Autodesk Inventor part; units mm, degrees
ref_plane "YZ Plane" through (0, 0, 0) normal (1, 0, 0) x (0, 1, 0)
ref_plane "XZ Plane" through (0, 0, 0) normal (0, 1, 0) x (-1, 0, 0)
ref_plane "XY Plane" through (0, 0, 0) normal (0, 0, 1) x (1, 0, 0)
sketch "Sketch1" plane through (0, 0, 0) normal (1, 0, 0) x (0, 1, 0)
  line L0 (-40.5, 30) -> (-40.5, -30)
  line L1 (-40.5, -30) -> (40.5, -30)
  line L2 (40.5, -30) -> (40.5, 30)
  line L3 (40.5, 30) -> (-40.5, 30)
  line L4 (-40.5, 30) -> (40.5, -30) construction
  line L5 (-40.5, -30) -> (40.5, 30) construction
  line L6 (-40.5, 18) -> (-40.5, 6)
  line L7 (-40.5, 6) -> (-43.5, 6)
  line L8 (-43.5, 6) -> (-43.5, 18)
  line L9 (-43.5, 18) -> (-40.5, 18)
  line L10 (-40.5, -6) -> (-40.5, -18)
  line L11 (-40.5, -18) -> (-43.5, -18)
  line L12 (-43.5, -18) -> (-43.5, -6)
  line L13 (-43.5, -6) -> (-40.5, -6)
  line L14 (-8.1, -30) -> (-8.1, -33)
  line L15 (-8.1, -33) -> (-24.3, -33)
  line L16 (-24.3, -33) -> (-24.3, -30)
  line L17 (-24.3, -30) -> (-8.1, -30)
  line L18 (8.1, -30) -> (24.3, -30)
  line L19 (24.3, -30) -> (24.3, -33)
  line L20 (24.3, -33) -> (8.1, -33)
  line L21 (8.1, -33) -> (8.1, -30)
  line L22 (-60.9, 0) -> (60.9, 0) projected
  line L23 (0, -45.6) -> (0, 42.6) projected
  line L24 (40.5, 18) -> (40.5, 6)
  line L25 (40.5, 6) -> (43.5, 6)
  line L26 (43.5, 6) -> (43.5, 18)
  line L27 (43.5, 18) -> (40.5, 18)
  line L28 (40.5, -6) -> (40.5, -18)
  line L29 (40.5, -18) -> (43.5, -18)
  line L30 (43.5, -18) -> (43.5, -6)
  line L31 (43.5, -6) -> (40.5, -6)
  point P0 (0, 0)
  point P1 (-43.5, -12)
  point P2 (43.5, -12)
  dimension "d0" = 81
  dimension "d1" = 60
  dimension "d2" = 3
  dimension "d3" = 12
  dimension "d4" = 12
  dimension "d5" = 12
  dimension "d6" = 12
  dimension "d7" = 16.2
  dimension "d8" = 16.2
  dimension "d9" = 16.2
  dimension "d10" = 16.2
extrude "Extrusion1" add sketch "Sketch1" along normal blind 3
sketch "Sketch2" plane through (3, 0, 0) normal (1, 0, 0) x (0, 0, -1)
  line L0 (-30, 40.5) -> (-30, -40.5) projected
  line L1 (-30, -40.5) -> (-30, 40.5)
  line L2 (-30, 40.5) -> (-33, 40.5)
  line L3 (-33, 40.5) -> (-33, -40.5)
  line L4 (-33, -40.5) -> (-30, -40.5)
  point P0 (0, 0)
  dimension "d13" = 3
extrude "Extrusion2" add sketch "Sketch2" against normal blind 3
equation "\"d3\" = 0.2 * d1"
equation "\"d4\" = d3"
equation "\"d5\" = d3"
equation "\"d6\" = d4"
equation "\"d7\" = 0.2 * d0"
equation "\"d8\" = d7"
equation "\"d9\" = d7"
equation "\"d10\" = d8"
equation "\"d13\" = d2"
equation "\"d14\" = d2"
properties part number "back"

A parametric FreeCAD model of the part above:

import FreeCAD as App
import Part
import Sketcher
Q = App.Units.Quantity


def add_polygon(sketch, points):
    """Adds a closed chain of lines whose ends are joined by coincident constraints."""
    first, n = sketch.GeometryCount, len(points)
    for a, b in zip(points, points[1:] + points[:1]):
        sketch.addGeometry(Part.LineSegment(App.Vector(*a, 0), App.Vector(*b, 0)), False)
    for i in range(n):
        sketch.addConstraint(Sketcher.Constraint("Coincident", first + i, 2, first + (i + 1) % n, 1))

doc = App.newDocument("Part")
body = doc.addObject("PartDesign::Body", "Body")

# Sketch on YZ plane
sketch1 = body.newObject("Sketcher::SketchObject", "Sketch")
sketch1.AttachmentSupport = (doc.getObject("YZ_Plane"), [""])
sketch1.MapMode = "FlatFace"
add_polygon(sketch1, [(-40.5, 30), (-40.5, 18), (-43.5, 18), (-43.5, 6), (-40.5, 6), (-40.5, -6), (-43.5, -6), (-43.5, -18), (-40.5, -18), (-40.5, -30), (-24.3, -30), (-24.3, -33), (-8.1, -33), (-8.1, -30), (8.1, -30), (8.1, -33), (24.3, -33), (24.3, -30), (40.5, -30), (40.5, -18), (43.5, -18), (43.5, -6), (40.5, -6), (40.5, 6), (43.5, 6), (43.5, 18), (40.5, 18), (40.5, 30)])  # lines 0-27
sketch1.addConstraint(Sketcher.Constraint("Vertical", 0))
sketch1.addConstraint(Sketcher.Constraint("Horizontal", 1))
sketch1.addConstraint(Sketcher.Constraint("Vertical", 2))
sketch1.addConstraint(Sketcher.Constraint("Horizontal", 3))
sketch1.addConstraint(Sketcher.Constraint("Vertical", 4))
sketch1.addConstraint(Sketcher.Constraint("Horizontal", 5))
sketch1.addConstraint(Sketcher.Constraint("Vertical", 6))
sketch1.addConstraint(Sketcher.Constraint("Horizontal", 7))
sketch1.addConstraint(Sketcher.Constraint("Vertical", 8))
sketch1.addConstraint(Sketcher.Constraint("Horizontal", 9))
sketch1.addConstraint(Sketcher.Constraint("Vertical", 10))
sketch1.addConstraint(Sketcher.Constraint("Horizontal", 11))
sketch1.addConstraint(Sketcher.Constraint("Vertical", 12))
sketch1.addConstraint(Sketcher.Constraint("Horizontal", 13))
sketch1.addConstraint(Sketcher.Constraint("Vertical", 14))
sketch1.addConstraint(Sketcher.Constraint("Horizontal", 15))
sketch1.addConstraint(Sketcher.Constraint("Vertical", 16))
sketch1.addConstraint(Sketcher.Constraint("Horizontal", 17))
sketch1.addConstraint(Sketcher.Constraint("Vertical", 18))
sketch1.addConstraint(Sketcher.Constraint("Horizontal", 19))
sketch1.addConstraint(Sketcher.Constraint("Vertical", 20))
sketch1.addConstraint(Sketcher.Constraint("Horizontal", 21))
sketch1.addConstraint(Sketcher.Constraint("Vertical", 22))
sketch1.addConstraint(Sketcher.Constraint("Horizontal", 23))
sketch1.addConstraint(Sketcher.Constraint("Vertical", 24))
sketch1.addConstraint(Sketcher.Constraint("Horizontal", 25))
sketch1.addConstraint(Sketcher.Constraint("Vertical", 26))
sketch1.addConstraint(Sketcher.Constraint("Horizontal", 27))
sketch1.addConstraint(Sketcher.Constraint("Symmetric", 0, 2, 18, 2, -1, 1))
sketch1.addConstraint(Sketcher.Constraint("Symmetric", 2, 2, 20, 2, -1, 1))
sketch1.addConstraint(Sketcher.Constraint("Symmetric", 4, 2, 22, 2, -1, 1))
sketch1.addConstraint(Sketcher.Constraint("Symmetric", 6, 2, 24, 2, -1, 1))
sketch1.addConstraint(Sketcher.Constraint("Symmetric", 8, 2, 26, 2, -1, 1))
sketch1.addConstraint(Sketcher.Constraint("Symmetric", 11, 2, 14, 2, -2))
sketch1.addConstraint(Sketcher.Constraint("Symmetric", 9, 2, 16, 2, -2))
sketch1.addConstraint(Sketcher.Constraint("Symmetric", 7, 2, 18, 2, -2))
sketch1.addConstraint(Sketcher.Constraint("Symmetric", 5, 2, 20, 2, -2))
sketch1.addConstraint(Sketcher.Constraint("Horizontal", 9, 2, 12, 2))
sketch1.addConstraint(Sketcher.Constraint("Vertical", 0, 2, 3, 2))
sketch1.addConstraint(Sketcher.Constraint("Equal", 9, 11))
sketch1.addConstraint(Sketcher.Constraint("Equal", 11, 13))
sketch1.addConstraint(Sketcher.Constraint("Equal", 0, 2))
sketch1.addConstraint(Sketcher.Constraint("Equal", 2, 4))
sketch1.addConstraint(Sketcher.Constraint("Equal", 25, 10))
sketch1.addConstraint(Sketcher.Constraint("DistanceX", 1, 2, 1, 1, Q("3 mm")))
sketch1.addConstraint(Sketcher.Constraint("DistanceX", 27, 2, 27, 1, Q("81 mm")))
sketch1.addConstraint(Sketcher.Constraint("DistanceY", 0, 2, 0, 1, Q("12 mm")))
pad1 = body.newObject("PartDesign::Pad", "Pad")
pad1.Profile = sketch1
pad1.Length = 3

# Sketch on YZ plane
sketch2 = body.newObject("Sketcher::SketchObject", "Sketch001")
sketch2.AttachmentSupport = (doc.getObject("YZ_Plane"), [""])
sketch2.MapMode = "FlatFace"
sketch2.AttachmentOffset = App.Placement(App.Vector(0, 0, 3), App.Rotation())
add_polygon(sketch2, [(-40.5, 30), (40.5, 30), (40.5, 33), (-40.5, 33)])  # lines 0-3
sketch2.addConstraint(Sketcher.Constraint("Horizontal", 0))
sketch2.addConstraint(Sketcher.Constraint("Vertical", 1))
sketch2.addConstraint(Sketcher.Constraint("Horizontal", 2))
sketch2.addConstraint(Sketcher.Constraint("Vertical", 3))
sketch2.addConstraint(Sketcher.Constraint("DistanceY", 1, 1, 1, 2, Q("3 mm")))
sketch2.addConstraint(Sketcher.Constraint("DistanceX", 0, 1, 0, 2, Q("81 mm")))
sketch2.addConstraint(Sketcher.Constraint("DistanceY", -1, 1, 0, 2, Q("30 mm")))
sketch2.addConstraint(Sketcher.Constraint("DistanceX", -1, 1, 0, 2, Q("40.5 mm")))
pad2 = body.newObject("PartDesign::Pad", "Pad001")
pad2.Profile = sketch2
pad2.Length = 3
pad2.Reversed = True

doc.recompute()
